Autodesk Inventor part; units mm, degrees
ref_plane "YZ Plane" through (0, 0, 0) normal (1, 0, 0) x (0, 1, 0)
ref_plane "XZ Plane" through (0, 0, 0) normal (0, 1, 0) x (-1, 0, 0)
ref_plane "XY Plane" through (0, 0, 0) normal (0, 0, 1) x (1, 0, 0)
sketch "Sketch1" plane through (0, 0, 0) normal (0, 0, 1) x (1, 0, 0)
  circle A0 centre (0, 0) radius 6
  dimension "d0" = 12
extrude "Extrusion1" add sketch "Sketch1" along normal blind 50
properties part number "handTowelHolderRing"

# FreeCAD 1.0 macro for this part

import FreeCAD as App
import Part
import Sketcher
from FreeCAD import Vector
Q = App.Units.Quantity

doc = App.newDocument("Part")
body = doc.addObject("PartDesign::Body", "Body")

sketch1 = body.newObject("Sketcher::SketchObject", "Sketch")
sketch1.AttachmentSupport = (doc.getObject("XY_Plane"), [""])
sketch1.MapMode = "FlatFace"
sketch1.addGeometry(Part.Circle(Vector(0, 0, 0), Vector(0, 0, 1), 6), False)
sketch1.addConstraint(Sketcher.Constraint("Coincident", 0, 3, -1, 1))
sketch1.addConstraint(Sketcher.Constraint("Diameter", 0, Q("12 mm")))
pad1 = body.newObject("PartDesign::Pad", "Pad")
pad1.Profile = sketch1
pad1.Length = 50

doc.recompute()
